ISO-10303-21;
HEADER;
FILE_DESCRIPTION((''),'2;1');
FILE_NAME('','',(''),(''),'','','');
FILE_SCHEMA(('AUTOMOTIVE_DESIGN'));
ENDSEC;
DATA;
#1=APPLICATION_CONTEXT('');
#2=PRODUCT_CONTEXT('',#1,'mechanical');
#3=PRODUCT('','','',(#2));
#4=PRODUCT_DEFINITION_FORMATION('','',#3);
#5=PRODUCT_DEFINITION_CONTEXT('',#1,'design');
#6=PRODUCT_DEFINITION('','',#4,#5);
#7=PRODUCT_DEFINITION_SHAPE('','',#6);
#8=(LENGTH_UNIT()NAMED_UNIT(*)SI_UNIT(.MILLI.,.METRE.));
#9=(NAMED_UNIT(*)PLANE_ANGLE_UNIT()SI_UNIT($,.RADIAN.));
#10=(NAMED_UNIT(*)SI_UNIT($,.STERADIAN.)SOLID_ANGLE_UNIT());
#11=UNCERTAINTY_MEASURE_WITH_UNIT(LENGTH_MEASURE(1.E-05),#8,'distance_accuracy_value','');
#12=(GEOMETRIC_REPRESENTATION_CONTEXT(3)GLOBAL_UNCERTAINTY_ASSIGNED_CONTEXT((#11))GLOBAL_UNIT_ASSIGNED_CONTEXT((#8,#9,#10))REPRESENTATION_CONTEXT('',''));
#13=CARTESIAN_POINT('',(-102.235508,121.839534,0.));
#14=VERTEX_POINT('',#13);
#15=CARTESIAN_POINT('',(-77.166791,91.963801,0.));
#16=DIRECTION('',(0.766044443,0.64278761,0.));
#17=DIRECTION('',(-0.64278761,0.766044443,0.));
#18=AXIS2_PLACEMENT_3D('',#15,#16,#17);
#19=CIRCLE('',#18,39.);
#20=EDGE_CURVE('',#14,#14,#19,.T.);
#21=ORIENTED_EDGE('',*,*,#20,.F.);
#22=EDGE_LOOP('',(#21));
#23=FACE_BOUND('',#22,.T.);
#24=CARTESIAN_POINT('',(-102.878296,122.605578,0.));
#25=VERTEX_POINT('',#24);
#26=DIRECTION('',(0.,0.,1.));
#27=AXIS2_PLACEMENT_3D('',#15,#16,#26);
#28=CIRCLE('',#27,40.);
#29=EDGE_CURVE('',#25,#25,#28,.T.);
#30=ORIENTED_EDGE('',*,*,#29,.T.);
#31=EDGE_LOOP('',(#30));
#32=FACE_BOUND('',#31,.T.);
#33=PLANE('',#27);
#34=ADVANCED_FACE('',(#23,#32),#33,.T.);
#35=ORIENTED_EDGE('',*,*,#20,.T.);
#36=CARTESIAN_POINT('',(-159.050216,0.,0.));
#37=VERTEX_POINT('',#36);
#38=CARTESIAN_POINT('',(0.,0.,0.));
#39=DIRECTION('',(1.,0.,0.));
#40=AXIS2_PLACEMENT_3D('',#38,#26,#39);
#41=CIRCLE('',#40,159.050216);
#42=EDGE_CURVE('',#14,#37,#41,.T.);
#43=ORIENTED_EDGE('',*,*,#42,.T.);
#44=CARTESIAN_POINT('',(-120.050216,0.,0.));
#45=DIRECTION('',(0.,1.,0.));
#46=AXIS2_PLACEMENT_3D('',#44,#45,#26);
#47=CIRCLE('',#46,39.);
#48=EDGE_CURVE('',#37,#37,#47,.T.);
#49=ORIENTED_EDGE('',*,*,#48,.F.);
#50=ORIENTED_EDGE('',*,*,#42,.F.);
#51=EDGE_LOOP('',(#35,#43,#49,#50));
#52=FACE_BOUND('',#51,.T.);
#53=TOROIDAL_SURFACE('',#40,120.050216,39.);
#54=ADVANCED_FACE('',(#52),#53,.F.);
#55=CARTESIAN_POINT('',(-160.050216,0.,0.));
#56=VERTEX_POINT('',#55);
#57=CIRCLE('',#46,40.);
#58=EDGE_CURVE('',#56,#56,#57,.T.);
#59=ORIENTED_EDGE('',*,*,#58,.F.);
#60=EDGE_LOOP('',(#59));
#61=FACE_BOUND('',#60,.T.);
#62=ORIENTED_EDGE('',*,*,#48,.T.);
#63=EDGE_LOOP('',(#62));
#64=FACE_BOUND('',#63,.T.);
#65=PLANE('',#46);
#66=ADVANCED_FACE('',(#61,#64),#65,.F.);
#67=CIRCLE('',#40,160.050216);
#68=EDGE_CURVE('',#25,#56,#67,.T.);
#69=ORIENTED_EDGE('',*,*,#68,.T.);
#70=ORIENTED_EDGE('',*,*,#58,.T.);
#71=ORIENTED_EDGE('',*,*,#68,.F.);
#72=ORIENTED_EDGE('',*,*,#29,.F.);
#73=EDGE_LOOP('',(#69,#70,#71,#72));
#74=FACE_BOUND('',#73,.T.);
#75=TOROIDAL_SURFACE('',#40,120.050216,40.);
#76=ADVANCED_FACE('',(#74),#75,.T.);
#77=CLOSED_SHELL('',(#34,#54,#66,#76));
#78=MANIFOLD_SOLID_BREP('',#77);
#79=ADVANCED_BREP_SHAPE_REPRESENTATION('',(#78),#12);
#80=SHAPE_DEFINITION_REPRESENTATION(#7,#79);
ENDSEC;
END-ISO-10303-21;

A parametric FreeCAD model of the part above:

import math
import FreeCAD as App
import Part
import Sketcher

V = App.Vector
Q = App.Units.Quantity

doc = App.newDocument("Part")
body = doc.addObject("PartDesign::Body", "Body")

# Sketch on XZ plane
sketch1 = body.newObject("Sketcher::SketchObject", "Sketch")
sketch1.AttachmentSupport = (doc.getObject("XZ_Plane"), [""])
sketch1.MapMode = "FlatFace"
sketch1.addGeometry(Part.Circle(V(-120, 0, 0), V(0, 0, 1), 40), False)
sketch1.addGeometry(Part.Circle(V(-120, 0, 0), V(0, 0, 1), 39), False)
sketch1.addConstraint(Sketcher.Constraint("Coincident", 1, 3, 0, 3))
sketch1.addConstraint(Sketcher.Constraint("PointOnObject", 0, 3, -1))
sketch1.addConstraint(Sketcher.Constraint("Diameter", 0, Q("80 mm")))
sketch1.addConstraint(Sketcher.Constraint("Diameter", 1, Q("78 mm")))
sketch1.addConstraint(Sketcher.Constraint("DistanceX", 0, 3, -1, 1, Q("120.050216 mm")))

# Sketch on XY plane
sketch2 = body.newObject("Sketcher::SketchObject", "Sketch001")
sketch2.AttachmentSupport = (doc.getObject("XY_Plane"), [""])
sketch2.MapMode = "FlatFace"
sketch2.addGeometry(Part.ArcOfCircle(Part.Circle(V(0, 0, 0), V(0, 0, 1), 120), math.radians(130), math.radians(180)), False)
sketch2.addConstraint(Sketcher.Constraint("Coincident", 0, 3, -1, 1))
sketch2.addConstraint(Sketcher.Constraint("PointOnObject", 0, 2, -1))
sketch2.addConstraint(Sketcher.Constraint("Radius", 0, Q("120 mm")))
sketch2.addConstraint(Sketcher.Constraint("DistanceX", 0, 1, -1, 1, Q("77.134513 mm")))
doc.recompute()

additivepipe = body.newObject("PartDesign::AdditivePipe", "AdditivePipe")
additivepipe.Profile = sketch1
additivepipe.Spine = (sketch2, ["Edge1"])

doc.recompute()
